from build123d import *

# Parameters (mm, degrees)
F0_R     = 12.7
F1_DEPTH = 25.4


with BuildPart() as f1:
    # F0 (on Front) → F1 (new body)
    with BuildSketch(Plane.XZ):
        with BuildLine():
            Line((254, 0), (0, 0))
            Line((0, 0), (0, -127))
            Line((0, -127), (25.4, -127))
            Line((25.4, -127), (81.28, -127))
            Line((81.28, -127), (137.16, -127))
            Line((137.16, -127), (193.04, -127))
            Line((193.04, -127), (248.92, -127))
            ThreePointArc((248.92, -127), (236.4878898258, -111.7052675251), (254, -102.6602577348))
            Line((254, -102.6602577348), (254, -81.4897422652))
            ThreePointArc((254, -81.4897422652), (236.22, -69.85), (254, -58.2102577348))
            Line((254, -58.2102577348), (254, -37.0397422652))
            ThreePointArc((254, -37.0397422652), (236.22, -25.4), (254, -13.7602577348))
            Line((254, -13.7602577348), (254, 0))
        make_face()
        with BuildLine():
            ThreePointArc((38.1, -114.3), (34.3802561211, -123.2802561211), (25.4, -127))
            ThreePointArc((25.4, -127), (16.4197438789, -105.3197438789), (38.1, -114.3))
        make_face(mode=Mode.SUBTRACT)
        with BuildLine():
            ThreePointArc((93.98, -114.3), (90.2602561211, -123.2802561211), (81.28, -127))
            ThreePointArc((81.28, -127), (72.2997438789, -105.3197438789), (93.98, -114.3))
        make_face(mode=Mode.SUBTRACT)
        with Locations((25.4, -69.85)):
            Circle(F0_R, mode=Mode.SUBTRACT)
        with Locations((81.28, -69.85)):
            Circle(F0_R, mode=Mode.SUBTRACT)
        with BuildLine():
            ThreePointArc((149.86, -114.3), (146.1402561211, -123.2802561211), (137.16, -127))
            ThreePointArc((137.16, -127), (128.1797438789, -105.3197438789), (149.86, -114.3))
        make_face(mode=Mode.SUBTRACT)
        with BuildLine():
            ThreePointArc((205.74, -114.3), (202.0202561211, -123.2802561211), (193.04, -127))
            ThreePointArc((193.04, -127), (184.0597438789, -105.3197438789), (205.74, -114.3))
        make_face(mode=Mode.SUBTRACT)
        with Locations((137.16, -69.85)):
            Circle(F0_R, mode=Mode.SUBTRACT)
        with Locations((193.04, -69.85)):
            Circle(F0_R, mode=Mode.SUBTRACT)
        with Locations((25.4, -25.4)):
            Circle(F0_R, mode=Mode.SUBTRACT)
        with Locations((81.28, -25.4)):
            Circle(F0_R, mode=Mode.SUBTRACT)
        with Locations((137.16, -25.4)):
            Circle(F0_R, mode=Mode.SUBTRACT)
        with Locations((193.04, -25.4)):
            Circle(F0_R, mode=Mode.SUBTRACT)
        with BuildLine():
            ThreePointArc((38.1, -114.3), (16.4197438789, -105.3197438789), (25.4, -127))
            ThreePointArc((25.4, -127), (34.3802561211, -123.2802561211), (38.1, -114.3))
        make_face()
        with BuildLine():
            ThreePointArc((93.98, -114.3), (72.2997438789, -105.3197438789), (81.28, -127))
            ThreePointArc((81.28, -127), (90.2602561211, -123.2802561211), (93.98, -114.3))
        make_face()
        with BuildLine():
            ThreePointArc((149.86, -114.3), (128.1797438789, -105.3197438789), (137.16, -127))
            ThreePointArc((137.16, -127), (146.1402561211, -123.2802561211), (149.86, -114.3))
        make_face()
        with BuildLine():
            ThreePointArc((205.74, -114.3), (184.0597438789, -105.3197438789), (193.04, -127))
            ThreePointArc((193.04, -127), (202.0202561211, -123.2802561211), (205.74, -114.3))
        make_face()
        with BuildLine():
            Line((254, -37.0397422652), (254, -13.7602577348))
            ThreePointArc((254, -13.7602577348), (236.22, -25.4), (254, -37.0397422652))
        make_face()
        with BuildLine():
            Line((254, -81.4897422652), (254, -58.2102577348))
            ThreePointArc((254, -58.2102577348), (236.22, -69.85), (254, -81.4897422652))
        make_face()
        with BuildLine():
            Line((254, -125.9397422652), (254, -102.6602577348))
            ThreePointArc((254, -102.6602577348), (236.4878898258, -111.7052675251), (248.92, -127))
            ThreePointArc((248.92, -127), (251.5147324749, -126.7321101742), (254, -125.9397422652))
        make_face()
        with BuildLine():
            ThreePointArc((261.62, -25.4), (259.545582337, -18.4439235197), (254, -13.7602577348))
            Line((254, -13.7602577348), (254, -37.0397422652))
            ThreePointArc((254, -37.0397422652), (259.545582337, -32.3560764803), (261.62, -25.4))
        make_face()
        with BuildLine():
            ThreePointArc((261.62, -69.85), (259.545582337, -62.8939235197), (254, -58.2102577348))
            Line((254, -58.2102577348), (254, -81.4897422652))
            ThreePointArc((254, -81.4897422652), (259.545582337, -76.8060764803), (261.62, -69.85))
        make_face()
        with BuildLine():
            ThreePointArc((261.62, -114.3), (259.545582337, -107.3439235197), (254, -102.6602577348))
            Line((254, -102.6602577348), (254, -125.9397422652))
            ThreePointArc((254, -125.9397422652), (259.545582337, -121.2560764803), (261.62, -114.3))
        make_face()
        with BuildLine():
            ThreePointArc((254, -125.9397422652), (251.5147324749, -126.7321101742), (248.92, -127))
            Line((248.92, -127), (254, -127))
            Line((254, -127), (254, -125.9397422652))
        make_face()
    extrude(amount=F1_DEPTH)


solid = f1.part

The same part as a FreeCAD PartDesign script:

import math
import FreeCAD as App
import Part
import Sketcher
Q = App.Units.Quantity

doc = App.newDocument("Part")
body = doc.addObject("PartDesign::Body", "Body")

sketch1 = body.newObject("Sketcher::SketchObject", "Sketch")
sketch1.AttachmentSupport = (doc.getObject("XZ_Plane"), [""])
sketch1.MapMode = "FlatFace"
sketch1.addGeometry([
    Part.LineSegment(App.Vector(0, -127, 0), App.Vector(254, -127, 0)),
    Part.LineSegment(App.Vector(254, -127, 0), App.Vector(254, -125.939742, 0)),
    Part.ArcOfCircle(Part.Circle(App.Vector(248.92, -114.3, 0), App.Vector(0, 0, 1), 12.7), math.radians(-66.421822), math.radians(0)),
    Part.ArcOfCircle(Part.Circle(App.Vector(248.92, -114.3, 0), App.Vector(0, 0, 1), 12.7), math.radians(0), math.radians(66.421822)),
    Part.LineSegment(App.Vector(254, -102.660258, 0), App.Vector(254, -81.489742, 0)),
    Part.ArcOfCircle(Part.Circle(App.Vector(248.92, -69.85, 0), App.Vector(0, 0, 1), 12.7), math.radians(-66.421822), math.radians(0)),
    Part.ArcOfCircle(Part.Circle(App.Vector(248.92, -69.85, 0), App.Vector(0, 0, 1), 12.7), math.radians(0), math.radians(66.421822)),
    Part.LineSegment(App.Vector(254, -58.210258, 0), App.Vector(254, -37.039742, 0)),
    Part.ArcOfCircle(Part.Circle(App.Vector(248.92, -25.4, 0), App.Vector(0, 0, 1), 12.7), math.radians(-66.421822), math.radians(0)),
    Part.ArcOfCircle(Part.Circle(App.Vector(248.92, -25.4, 0), App.Vector(0, 0, 1), 12.7), math.radians(0), math.radians(66.421822)),
    Part.LineSegment(App.Vector(254, -13.760258, 0), App.Vector(254, 0, 0)),
    Part.LineSegment(App.Vector(254, 0, 0), App.Vector(0, 0, 0)),
    Part.LineSegment(App.Vector(0, 0, 0), App.Vector(0, -127, 0)),
    Part.Circle(App.Vector(25.4, -69.85, 0), App.Vector(0, 0, 1), 12.7),
    Part.Circle(App.Vector(81.28, -69.85, 0), App.Vector(0, 0, 1), 12.7),
    Part.Circle(App.Vector(25.4, -25.4, 0), App.Vector(0, 0, 1), 12.7),
    Part.Circle(App.Vector(81.28, -25.4, 0), App.Vector(0, 0, 1), 12.7),
    Part.Circle(App.Vector(137.16, -69.85, 0), App.Vector(0, 0, 1), 12.7),
    Part.Circle(App.Vector(193.04, -69.85, 0), App.Vector(0, 0, 1), 12.7),
    Part.Circle(App.Vector(137.16, -25.4, 0), App.Vector(0, 0, 1), 12.7),
    Part.Circle(App.Vector(193.04, -25.4, 0), App.Vector(0, 0, 1), 12.7),
], False)
sketch1.addConstraint([
    Sketcher.Constraint("Coincident", 0, 2, 1, 1),
    Sketcher.Constraint("Coincident", 1, 2, 2, 1),
    Sketcher.Constraint("Tangent", 2, 2, 3, 1),
    Sketcher.Constraint("Coincident", 3, 2, 4, 1),
    Sketcher.Constraint("Coincident", 4, 2, 5, 1),
    Sketcher.Constraint("Tangent", 5, 2, 6, 1),
    Sketcher.Constraint("Coincident", 6, 2, 7, 1),
    Sketcher.Constraint("Coincident", 7, 2, 8, 1),
    Sketcher.Constraint("Tangent", 8, 2, 9, 1),
    Sketcher.Constraint("Coincident", 9, 2, 10, 1),
    Sketcher.Constraint("Coincident", 10, 2, 11, 1),
    Sketcher.Constraint("Coincident", 11, 2, 12, 1),
    Sketcher.Constraint("Coincident", 12, 2, 0, 1),
    Sketcher.Constraint("Horizontal", 0),
    Sketcher.Constraint("Vertical", 1),
    Sketcher.Constraint("Vertical", 4),
    Sketcher.Constraint("Vertical", 7),
    Sketcher.Constraint("Vertical", 10),
    Sketcher.Constraint("Horizontal", 11),
    Sketcher.Constraint("Vertical", 12),
    Sketcher.Constraint("Coincident", 11, 2, -1, 1),
    Sketcher.Constraint("Equal", 2, 3),
    Sketcher.Constraint("Equal", 3, 5),
    Sketcher.Constraint("Equal", 5, 6),
    Sketcher.Constraint("Equal", 6, 8),
    Sketcher.Constraint("Equal", 8, 9),
    Sketcher.Constraint("Equal", 9, 13),
    Sketcher.Constraint("Equal", 13, 14),
    Sketcher.Constraint("Equal", 14, 15),
    Sketcher.Constraint("Equal", 15, 16),
    Sketcher.Constraint("Equal", 16, 17),
    Sketcher.Constraint("Equal", 17, 18),
    Sketcher.Constraint("Equal", 18, 19),
    Sketcher.Constraint("Equal", 19, 20),
    Sketcher.Constraint("Horizontal", 6, 3, 13, 3),
    Sketcher.Constraint("Horizontal", 13, 3, 14, 3),
    Sketcher.Constraint("Horizontal", 9, 3, 15, 3),
    Sketcher.Constraint("Horizontal", 15, 3, 16, 3),
    Sketcher.Constraint("Horizontal", 14, 3, 17, 3),
    Sketcher.Constraint("Horizontal", 17, 3, 18, 3),
    Sketcher.Constraint("Horizontal", 16, 3, 19, 3),
    Sketcher.Constraint("Horizontal", 19, 3, 20, 3),
    Sketcher.Constraint("Horizontal", 3, 3, 2, 2),
    Sketcher.Constraint("Horizontal", 18, 3, 5, 2),
    Sketcher.Constraint("Horizontal", 20, 3, 8, 2),
    Sketcher.Constraint("Vertical", 3, 3, 5, 3),
    Sketcher.Constraint("Vertical", 6, 3, 8, 3),
    Sketcher.Constraint("Vertical", 13, 3, 15, 3),
    Sketcher.Constraint("Vertical", 14, 3, 16, 3),
    Sketcher.Constraint("Vertical", 17, 3, 19, 3),
    Sketcher.Constraint("Vertical", 18, 3, 20, 3),
    Sketcher.Constraint("Vertical", 1, 2, 3, 2),
    Sketcher.Constraint("Vertical", 4, 2, 6, 2),
    Sketcher.Constraint("Vertical", 7, 2, 9, 2),
    Sketcher.Constraint("Equal", 4, 7),
    Sketcher.Constraint("Diameter", 13, Q("1 in")),
    Sketcher.Constraint("DistanceX", 0, 1, 0, 2, Q("10 in")),
    Sketcher.Constraint("DistanceY", 12, 2, 12, 1, Q("5 in")),
    Sketcher.Constraint("DistanceY", 8, 3, -1, 1, Q("1 in")),
    Sketcher.Constraint("DistanceX", -1, 1, 13, 3, Q("1 in")),
    Sketcher.Constraint("DistanceX", -1, 1, 2, 3, Q("9.8 in")),
    Sketcher.Constraint("DistanceY", 2, 3, -1, 1, Q("4.5 in")),
    Sketcher.Constraint("DistanceX", -1, 1, 14, 3, Q("3.2 in")),
    Sketcher.Constraint("DistanceX", -1, 1, 17, 3, Q("5.4 in")),
    Sketcher.Constraint("DistanceX", -1, 1, 18, 3, Q("7.6 in")),
])
pad1 = body.newObject("PartDesign::Pad", "Pad")
pad1.Profile = sketch1
pad1.Length = Q("1 in")

doc.recompute()
